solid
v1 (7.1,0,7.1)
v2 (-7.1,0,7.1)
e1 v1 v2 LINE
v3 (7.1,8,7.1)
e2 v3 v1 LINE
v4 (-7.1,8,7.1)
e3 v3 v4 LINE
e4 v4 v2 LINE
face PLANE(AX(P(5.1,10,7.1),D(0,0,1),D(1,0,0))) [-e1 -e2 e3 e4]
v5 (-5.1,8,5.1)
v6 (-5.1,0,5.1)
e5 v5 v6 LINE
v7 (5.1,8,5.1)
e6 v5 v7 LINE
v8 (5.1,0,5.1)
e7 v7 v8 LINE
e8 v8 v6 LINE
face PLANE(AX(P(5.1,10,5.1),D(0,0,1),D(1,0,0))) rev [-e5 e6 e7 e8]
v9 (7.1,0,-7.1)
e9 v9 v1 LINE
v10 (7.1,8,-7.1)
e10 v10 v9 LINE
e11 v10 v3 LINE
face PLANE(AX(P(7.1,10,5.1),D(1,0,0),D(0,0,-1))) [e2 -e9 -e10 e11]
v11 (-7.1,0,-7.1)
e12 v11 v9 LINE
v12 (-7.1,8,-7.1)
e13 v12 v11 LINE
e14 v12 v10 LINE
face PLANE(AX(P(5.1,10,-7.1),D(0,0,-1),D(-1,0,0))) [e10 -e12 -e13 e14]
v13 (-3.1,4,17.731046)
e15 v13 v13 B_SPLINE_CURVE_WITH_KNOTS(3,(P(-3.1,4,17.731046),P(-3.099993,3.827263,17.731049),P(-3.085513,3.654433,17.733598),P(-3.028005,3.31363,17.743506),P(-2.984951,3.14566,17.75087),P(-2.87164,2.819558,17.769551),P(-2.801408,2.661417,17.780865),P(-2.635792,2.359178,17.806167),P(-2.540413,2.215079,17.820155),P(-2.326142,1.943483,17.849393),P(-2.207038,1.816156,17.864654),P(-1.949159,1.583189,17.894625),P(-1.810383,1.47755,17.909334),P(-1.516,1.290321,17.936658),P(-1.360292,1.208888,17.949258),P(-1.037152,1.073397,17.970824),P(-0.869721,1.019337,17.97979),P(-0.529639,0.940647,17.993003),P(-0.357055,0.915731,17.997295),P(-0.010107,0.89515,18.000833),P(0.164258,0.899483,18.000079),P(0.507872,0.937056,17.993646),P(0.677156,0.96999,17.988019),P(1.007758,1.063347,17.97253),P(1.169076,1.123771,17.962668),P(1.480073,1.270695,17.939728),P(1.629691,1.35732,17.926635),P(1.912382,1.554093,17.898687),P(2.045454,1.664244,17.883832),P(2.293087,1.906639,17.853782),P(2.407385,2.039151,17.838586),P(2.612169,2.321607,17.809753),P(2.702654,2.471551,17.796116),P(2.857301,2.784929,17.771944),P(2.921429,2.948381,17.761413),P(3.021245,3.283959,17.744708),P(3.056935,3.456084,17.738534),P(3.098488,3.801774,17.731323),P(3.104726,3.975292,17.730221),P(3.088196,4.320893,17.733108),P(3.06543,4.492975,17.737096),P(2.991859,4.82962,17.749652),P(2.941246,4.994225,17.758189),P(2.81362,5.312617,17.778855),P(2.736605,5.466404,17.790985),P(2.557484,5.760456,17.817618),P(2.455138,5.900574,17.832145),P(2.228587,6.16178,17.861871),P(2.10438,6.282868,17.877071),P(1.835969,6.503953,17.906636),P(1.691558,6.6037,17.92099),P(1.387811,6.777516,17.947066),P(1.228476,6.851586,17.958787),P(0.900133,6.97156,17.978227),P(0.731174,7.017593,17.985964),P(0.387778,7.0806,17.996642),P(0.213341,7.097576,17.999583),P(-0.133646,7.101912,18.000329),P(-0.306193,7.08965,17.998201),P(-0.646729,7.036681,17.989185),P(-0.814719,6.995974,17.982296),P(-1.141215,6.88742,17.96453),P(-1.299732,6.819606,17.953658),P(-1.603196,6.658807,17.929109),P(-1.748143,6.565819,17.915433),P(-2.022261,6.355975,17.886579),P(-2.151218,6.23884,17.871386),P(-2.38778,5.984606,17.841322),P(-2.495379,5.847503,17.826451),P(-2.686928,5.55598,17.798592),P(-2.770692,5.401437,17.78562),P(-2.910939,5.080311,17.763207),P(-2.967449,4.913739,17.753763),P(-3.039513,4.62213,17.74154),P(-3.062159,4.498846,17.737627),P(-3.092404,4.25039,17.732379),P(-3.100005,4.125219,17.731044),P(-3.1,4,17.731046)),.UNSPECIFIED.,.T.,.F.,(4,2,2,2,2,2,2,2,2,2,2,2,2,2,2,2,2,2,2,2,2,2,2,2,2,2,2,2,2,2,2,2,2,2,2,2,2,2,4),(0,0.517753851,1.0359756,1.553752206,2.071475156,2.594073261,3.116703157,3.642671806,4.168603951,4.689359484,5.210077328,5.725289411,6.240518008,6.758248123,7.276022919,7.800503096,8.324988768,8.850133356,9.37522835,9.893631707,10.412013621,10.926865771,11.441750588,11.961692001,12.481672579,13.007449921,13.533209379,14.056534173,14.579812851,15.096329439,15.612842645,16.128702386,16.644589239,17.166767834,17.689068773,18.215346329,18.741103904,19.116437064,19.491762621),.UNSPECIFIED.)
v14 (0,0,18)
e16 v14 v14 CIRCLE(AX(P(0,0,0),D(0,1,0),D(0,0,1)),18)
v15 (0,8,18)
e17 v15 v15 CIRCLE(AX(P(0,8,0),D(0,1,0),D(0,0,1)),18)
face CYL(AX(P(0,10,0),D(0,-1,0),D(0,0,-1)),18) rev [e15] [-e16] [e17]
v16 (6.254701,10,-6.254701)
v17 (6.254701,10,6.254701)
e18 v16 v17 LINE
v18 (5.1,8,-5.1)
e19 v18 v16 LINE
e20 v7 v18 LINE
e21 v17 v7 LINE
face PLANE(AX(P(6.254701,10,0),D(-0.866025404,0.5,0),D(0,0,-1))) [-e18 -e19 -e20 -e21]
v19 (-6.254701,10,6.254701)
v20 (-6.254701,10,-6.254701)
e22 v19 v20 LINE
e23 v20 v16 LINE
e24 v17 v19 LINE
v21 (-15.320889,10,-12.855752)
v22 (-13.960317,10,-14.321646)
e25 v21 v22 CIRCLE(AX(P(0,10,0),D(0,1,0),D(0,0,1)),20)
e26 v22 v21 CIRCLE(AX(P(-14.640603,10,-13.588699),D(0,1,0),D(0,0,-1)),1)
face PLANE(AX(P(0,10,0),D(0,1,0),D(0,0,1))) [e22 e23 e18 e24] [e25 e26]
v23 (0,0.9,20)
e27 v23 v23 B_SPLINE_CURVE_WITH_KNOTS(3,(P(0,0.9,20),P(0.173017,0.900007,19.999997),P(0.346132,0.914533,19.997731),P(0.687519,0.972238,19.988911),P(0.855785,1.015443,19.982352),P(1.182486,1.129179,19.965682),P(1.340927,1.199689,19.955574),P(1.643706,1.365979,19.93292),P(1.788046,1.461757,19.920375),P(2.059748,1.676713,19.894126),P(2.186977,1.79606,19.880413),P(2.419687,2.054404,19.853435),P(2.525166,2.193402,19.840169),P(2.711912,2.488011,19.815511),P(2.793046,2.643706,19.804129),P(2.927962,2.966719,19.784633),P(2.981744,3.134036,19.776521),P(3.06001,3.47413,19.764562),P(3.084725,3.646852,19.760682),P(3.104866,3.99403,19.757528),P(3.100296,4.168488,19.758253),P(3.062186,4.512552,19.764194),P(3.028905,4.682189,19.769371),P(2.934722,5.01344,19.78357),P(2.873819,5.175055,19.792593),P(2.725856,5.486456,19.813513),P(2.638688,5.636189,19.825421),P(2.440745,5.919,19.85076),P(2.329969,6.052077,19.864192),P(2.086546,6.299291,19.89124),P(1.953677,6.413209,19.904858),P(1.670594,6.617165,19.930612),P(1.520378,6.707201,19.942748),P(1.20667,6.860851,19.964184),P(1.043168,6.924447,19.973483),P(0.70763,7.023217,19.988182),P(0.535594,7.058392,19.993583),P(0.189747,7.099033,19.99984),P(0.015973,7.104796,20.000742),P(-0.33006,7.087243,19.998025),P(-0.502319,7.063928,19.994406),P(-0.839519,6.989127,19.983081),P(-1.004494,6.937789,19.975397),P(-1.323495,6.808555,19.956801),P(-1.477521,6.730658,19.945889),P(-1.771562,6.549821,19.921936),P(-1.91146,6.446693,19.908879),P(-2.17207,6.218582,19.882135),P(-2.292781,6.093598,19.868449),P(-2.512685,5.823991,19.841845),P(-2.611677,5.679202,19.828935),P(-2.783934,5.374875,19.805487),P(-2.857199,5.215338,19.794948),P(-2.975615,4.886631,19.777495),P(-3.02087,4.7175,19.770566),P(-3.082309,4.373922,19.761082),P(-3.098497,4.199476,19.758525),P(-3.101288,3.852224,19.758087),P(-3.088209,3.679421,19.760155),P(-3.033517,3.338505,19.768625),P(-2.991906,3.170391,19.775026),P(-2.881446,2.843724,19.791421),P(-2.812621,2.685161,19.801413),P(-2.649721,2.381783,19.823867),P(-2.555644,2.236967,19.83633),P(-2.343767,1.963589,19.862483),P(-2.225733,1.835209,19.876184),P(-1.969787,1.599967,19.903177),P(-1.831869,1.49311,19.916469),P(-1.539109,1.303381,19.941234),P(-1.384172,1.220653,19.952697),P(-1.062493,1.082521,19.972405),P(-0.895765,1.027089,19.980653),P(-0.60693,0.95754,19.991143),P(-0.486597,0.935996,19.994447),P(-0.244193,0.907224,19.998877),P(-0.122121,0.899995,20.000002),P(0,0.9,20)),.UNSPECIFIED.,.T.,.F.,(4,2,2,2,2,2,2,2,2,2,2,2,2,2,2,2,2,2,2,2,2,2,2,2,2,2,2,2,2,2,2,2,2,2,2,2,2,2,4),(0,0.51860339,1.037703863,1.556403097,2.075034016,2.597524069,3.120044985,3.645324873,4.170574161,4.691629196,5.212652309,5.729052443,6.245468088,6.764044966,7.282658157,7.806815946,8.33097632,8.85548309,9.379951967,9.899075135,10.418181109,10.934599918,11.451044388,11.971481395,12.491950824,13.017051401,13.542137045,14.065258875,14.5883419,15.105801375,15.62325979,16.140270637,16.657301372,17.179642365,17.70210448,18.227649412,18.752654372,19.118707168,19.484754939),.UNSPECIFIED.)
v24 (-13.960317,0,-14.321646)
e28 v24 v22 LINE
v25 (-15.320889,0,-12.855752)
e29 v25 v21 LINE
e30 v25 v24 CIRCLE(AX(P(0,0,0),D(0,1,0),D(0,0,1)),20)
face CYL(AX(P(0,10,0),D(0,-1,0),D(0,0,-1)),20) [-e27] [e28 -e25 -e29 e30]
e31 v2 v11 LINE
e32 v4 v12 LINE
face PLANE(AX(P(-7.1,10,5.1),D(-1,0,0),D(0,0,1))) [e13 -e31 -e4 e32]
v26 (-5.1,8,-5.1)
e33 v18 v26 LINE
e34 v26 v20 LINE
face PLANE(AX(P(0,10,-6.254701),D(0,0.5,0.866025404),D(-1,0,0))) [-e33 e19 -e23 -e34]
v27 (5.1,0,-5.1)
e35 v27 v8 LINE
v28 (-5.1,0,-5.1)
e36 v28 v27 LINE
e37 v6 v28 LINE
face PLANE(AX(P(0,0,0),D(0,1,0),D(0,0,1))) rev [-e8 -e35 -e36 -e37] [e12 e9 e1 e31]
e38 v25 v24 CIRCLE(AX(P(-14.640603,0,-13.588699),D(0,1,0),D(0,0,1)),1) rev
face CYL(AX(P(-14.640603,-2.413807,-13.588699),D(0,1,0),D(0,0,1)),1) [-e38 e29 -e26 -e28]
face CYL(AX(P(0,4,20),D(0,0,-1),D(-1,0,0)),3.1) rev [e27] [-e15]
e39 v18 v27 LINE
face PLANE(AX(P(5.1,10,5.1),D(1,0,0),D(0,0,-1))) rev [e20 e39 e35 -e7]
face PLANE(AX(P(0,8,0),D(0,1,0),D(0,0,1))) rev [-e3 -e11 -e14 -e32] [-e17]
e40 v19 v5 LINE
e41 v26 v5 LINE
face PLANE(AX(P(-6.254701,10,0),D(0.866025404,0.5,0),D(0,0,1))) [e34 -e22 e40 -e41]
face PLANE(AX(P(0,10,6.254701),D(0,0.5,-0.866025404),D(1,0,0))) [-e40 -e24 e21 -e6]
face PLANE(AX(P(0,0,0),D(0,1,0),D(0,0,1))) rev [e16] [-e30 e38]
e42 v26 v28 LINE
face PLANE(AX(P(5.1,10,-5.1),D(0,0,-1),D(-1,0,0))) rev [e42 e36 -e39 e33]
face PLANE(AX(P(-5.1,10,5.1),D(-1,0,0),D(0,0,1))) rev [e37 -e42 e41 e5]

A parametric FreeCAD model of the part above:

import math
import FreeCAD as App
import Part
import Sketcher


def edges_at(feature, points):
    """Names of the edges that pass closest to the given points."""
    edges = feature.Shape.Edges
    near = lambda p: min(range(len(edges)), key=lambda i: edges[i].distToShape(Part.Vertex(*p))[0])
    return sorted({f"Edge{near(p) + 1}" for p in points})


def faces_at(feature, points):
    """Names of the faces that lie closest to the given points."""
    faces = feature.Shape.Faces
    near = lambda p: min(range(len(faces)), key=lambda i: faces[i].distToShape(Part.Vertex(*p))[0])
    return sorted({f"Face{near(p) + 1}" for p in points})

doc = App.newDocument("Part")
body = doc.addObject("PartDesign::Body", "Body")

sketch1 = doc.addObject("Sketcher::SketchObject", "Sketch")
body.addObject(sketch1)
sketch1.AttachmentSupport = (doc.XZ_Plane, [""])
sketch1.MapMode = "FlatFace"
sketch1.addGeometry(Part.Circle(App.Vector(0, 0, 0), App.Vector(0, 0, 1), 20), False)
sketch1.addConstraint([
    Sketcher.Constraint("Coincident", 0, 3, -1, 1),
    Sketcher.Constraint("Diameter", 0, 40.0),
])
pad1 = doc.addObject("PartDesign::Pad", "Pad")
body.addObject(pad1)
pad1.Profile = sketch1
pad1.Length = 10
pad1.Reversed = True

sketch2 = doc.addObject("Sketcher::SketchObject", "Sketch001")
body.addObject(sketch2)
sketch2.AttachmentSupport = (doc.XZ_Plane, [""])
sketch2.MapMode = "FlatFace"
sketch2.addGeometry([
    Part.LineSegment(App.Vector(-5, 5, 0), App.Vector(-5, -5, 0)),
    Part.LineSegment(App.Vector(-5, -5, 0), App.Vector(5, -5, 0)),
    Part.LineSegment(App.Vector(5, -5, 0), App.Vector(5, 5, 0)),
    Part.LineSegment(App.Vector(5, 5, 0), App.Vector(-5, 5, 0)),
], False)
sketch2.addConstraint([
    Sketcher.Constraint("Coincident", 0, 2, 1, 1),
    Sketcher.Constraint("Coincident", 1, 2, 2, 1),
    Sketcher.Constraint("Coincident", 2, 2, 3, 1),
    Sketcher.Constraint("Coincident", 3, 2, 0, 1),
    Sketcher.Constraint("Vertical", 0),
    Sketcher.Constraint("Horizontal", 1),
    Sketcher.Constraint("Vertical", 2),
    Sketcher.Constraint("Horizontal", 3),
    Sketcher.Constraint("Symmetric", 0, 2, 2, 2, -1, 1),
    Sketcher.Constraint("Equal", 3, 0),
    Sketcher.Constraint("DistanceX", 1, 1, 1, 2, 10.2),
])
pocket1 = doc.addObject("PartDesign::Pocket", "Pocket")
body.addObject(pocket1)
pocket1.Profile = sketch2
pocket1.Type = "ThroughAll"
doc.recompute()

thickness = doc.addObject("PartDesign::Thickness", "Thickness")
body.addObject(thickness)
thickness.Base = (pocket1, faces_at(pocket1, [(-8, 0, 8)]))
thickness.Value = 2
thickness.Reversed = True
thickness.Join = "Intersection"

sketch3 = doc.addObject("Sketcher::SketchObject", "Sketch002")
body.addObject(sketch3)
sketch3.AttachmentSupport = (doc.XY_Plane, [""])
sketch3.MapMode = "FlatFace"
sketch3.AttachmentOffset = App.Placement(App.Vector(0, 0, 7.1), App.Rotation())
sketch3.addGeometry(Part.Circle(App.Vector(0, 4, 0), App.Vector(0, 0, 1), 3.1), False)
sketch3.addConstraint([
    Sketcher.Constraint("PointOnObject", 0, 3, -2),
    Sketcher.Constraint("Diameter", 0, 6.2),
    Sketcher.Constraint("DistanceY", -1, 1, 0, 3, 4.0),
])
pocket2 = doc.addObject("PartDesign::Pocket", "Pocket001")
body.addObject(pocket2)
pocket2.Profile = sketch3
pocket2.Type = "ThroughAll"
pocket2.Reversed = True

sketch4 = doc.addObject("Sketcher::SketchObject", "Sketch003")
body.addObject(sketch4)
sketch4.AttachmentSupport = (doc.XZ_Plane, [""])
sketch4.MapMode = "FlatFace"
sketch4.AttachmentOffset = App.Placement(App.Vector(0, 0, -10), App.Rotation())
sketch4.addGeometry([
    Part.LineSegment(App.Vector(-15.3, -12.9, 0), App.Vector(-14, -14.3, 0)),
    Part.ArcOfCircle(Part.Circle(App.Vector(-14.6, -13.6, 0), App.Vector(0, 0, 1), 1), math.radians(133), math.radians(313)),
], False)
sketch4.addConstraint([
    Sketcher.Constraint("Coincident", 0, 1, 1, 1),
    Sketcher.Constraint("Coincident", 1, 2, 0, 2),
    Sketcher.Constraint("Radius", 1, 1.0),
    Sketcher.Constraint("DistanceY", 1, 3, -1, 1, 13.588699),
    Sketcher.Constraint("DistanceX", 0, 1, -1, 1, 15.320889),
    Sketcher.Constraint("DistanceX", 0, 1, 1, 2, 1.360572),
    Sketcher.Constraint("DistanceX", 1, 3, -1, 1, 14.640603),
])
pad2 = doc.addObject("PartDesign::Pad", "Pad001")
body.addObject(pad2)
pad2.Profile = sketch4
pad2.Length = 10
doc.recompute()

chamfer = doc.addObject("PartDesign::Chamfer", "Chamfer")
body.addObject(chamfer)
chamfer.Base = (pad2, edges_at(pad2, [(5.1, 10, 0)]))
chamfer.ChamferType = "Two distances"
chamfer.Size = 2
chamfer.Size2 = 1.154701
doc.recompute()

chamfer2 = doc.addObject("PartDesign::Chamfer", "Chamfer001")
body.addObject(chamfer2)
chamfer2.Base = (chamfer, edges_at(chamfer, [(0.577, 10, -5.1)]))
chamfer2.ChamferType = "Two distances"
chamfer2.Size = 2
chamfer2.Size2 = 1.154701
doc.recompute()

chamfer3 = doc.addObject("PartDesign::Chamfer", "Chamfer002")
body.addObject(chamfer3)
chamfer3.Base = (chamfer2, edges_at(chamfer2, [(-5.1, 10, -0.577)]))
chamfer3.ChamferType = "Two distances"
chamfer3.Size = 2
chamfer3.Size2 = 1.154701
doc.recompute()

chamfer4 = doc.addObject("PartDesign::Chamfer", "Chamfer003")
body.addObject(chamfer4)
chamfer4.Base = (chamfer3, edges_at(chamfer3, [(0, 10, 5.1)]))
chamfer4.ChamferType = "Two distances"
chamfer4.Size = 2
chamfer4.Size2 = 1.154701

doc.recompute()
